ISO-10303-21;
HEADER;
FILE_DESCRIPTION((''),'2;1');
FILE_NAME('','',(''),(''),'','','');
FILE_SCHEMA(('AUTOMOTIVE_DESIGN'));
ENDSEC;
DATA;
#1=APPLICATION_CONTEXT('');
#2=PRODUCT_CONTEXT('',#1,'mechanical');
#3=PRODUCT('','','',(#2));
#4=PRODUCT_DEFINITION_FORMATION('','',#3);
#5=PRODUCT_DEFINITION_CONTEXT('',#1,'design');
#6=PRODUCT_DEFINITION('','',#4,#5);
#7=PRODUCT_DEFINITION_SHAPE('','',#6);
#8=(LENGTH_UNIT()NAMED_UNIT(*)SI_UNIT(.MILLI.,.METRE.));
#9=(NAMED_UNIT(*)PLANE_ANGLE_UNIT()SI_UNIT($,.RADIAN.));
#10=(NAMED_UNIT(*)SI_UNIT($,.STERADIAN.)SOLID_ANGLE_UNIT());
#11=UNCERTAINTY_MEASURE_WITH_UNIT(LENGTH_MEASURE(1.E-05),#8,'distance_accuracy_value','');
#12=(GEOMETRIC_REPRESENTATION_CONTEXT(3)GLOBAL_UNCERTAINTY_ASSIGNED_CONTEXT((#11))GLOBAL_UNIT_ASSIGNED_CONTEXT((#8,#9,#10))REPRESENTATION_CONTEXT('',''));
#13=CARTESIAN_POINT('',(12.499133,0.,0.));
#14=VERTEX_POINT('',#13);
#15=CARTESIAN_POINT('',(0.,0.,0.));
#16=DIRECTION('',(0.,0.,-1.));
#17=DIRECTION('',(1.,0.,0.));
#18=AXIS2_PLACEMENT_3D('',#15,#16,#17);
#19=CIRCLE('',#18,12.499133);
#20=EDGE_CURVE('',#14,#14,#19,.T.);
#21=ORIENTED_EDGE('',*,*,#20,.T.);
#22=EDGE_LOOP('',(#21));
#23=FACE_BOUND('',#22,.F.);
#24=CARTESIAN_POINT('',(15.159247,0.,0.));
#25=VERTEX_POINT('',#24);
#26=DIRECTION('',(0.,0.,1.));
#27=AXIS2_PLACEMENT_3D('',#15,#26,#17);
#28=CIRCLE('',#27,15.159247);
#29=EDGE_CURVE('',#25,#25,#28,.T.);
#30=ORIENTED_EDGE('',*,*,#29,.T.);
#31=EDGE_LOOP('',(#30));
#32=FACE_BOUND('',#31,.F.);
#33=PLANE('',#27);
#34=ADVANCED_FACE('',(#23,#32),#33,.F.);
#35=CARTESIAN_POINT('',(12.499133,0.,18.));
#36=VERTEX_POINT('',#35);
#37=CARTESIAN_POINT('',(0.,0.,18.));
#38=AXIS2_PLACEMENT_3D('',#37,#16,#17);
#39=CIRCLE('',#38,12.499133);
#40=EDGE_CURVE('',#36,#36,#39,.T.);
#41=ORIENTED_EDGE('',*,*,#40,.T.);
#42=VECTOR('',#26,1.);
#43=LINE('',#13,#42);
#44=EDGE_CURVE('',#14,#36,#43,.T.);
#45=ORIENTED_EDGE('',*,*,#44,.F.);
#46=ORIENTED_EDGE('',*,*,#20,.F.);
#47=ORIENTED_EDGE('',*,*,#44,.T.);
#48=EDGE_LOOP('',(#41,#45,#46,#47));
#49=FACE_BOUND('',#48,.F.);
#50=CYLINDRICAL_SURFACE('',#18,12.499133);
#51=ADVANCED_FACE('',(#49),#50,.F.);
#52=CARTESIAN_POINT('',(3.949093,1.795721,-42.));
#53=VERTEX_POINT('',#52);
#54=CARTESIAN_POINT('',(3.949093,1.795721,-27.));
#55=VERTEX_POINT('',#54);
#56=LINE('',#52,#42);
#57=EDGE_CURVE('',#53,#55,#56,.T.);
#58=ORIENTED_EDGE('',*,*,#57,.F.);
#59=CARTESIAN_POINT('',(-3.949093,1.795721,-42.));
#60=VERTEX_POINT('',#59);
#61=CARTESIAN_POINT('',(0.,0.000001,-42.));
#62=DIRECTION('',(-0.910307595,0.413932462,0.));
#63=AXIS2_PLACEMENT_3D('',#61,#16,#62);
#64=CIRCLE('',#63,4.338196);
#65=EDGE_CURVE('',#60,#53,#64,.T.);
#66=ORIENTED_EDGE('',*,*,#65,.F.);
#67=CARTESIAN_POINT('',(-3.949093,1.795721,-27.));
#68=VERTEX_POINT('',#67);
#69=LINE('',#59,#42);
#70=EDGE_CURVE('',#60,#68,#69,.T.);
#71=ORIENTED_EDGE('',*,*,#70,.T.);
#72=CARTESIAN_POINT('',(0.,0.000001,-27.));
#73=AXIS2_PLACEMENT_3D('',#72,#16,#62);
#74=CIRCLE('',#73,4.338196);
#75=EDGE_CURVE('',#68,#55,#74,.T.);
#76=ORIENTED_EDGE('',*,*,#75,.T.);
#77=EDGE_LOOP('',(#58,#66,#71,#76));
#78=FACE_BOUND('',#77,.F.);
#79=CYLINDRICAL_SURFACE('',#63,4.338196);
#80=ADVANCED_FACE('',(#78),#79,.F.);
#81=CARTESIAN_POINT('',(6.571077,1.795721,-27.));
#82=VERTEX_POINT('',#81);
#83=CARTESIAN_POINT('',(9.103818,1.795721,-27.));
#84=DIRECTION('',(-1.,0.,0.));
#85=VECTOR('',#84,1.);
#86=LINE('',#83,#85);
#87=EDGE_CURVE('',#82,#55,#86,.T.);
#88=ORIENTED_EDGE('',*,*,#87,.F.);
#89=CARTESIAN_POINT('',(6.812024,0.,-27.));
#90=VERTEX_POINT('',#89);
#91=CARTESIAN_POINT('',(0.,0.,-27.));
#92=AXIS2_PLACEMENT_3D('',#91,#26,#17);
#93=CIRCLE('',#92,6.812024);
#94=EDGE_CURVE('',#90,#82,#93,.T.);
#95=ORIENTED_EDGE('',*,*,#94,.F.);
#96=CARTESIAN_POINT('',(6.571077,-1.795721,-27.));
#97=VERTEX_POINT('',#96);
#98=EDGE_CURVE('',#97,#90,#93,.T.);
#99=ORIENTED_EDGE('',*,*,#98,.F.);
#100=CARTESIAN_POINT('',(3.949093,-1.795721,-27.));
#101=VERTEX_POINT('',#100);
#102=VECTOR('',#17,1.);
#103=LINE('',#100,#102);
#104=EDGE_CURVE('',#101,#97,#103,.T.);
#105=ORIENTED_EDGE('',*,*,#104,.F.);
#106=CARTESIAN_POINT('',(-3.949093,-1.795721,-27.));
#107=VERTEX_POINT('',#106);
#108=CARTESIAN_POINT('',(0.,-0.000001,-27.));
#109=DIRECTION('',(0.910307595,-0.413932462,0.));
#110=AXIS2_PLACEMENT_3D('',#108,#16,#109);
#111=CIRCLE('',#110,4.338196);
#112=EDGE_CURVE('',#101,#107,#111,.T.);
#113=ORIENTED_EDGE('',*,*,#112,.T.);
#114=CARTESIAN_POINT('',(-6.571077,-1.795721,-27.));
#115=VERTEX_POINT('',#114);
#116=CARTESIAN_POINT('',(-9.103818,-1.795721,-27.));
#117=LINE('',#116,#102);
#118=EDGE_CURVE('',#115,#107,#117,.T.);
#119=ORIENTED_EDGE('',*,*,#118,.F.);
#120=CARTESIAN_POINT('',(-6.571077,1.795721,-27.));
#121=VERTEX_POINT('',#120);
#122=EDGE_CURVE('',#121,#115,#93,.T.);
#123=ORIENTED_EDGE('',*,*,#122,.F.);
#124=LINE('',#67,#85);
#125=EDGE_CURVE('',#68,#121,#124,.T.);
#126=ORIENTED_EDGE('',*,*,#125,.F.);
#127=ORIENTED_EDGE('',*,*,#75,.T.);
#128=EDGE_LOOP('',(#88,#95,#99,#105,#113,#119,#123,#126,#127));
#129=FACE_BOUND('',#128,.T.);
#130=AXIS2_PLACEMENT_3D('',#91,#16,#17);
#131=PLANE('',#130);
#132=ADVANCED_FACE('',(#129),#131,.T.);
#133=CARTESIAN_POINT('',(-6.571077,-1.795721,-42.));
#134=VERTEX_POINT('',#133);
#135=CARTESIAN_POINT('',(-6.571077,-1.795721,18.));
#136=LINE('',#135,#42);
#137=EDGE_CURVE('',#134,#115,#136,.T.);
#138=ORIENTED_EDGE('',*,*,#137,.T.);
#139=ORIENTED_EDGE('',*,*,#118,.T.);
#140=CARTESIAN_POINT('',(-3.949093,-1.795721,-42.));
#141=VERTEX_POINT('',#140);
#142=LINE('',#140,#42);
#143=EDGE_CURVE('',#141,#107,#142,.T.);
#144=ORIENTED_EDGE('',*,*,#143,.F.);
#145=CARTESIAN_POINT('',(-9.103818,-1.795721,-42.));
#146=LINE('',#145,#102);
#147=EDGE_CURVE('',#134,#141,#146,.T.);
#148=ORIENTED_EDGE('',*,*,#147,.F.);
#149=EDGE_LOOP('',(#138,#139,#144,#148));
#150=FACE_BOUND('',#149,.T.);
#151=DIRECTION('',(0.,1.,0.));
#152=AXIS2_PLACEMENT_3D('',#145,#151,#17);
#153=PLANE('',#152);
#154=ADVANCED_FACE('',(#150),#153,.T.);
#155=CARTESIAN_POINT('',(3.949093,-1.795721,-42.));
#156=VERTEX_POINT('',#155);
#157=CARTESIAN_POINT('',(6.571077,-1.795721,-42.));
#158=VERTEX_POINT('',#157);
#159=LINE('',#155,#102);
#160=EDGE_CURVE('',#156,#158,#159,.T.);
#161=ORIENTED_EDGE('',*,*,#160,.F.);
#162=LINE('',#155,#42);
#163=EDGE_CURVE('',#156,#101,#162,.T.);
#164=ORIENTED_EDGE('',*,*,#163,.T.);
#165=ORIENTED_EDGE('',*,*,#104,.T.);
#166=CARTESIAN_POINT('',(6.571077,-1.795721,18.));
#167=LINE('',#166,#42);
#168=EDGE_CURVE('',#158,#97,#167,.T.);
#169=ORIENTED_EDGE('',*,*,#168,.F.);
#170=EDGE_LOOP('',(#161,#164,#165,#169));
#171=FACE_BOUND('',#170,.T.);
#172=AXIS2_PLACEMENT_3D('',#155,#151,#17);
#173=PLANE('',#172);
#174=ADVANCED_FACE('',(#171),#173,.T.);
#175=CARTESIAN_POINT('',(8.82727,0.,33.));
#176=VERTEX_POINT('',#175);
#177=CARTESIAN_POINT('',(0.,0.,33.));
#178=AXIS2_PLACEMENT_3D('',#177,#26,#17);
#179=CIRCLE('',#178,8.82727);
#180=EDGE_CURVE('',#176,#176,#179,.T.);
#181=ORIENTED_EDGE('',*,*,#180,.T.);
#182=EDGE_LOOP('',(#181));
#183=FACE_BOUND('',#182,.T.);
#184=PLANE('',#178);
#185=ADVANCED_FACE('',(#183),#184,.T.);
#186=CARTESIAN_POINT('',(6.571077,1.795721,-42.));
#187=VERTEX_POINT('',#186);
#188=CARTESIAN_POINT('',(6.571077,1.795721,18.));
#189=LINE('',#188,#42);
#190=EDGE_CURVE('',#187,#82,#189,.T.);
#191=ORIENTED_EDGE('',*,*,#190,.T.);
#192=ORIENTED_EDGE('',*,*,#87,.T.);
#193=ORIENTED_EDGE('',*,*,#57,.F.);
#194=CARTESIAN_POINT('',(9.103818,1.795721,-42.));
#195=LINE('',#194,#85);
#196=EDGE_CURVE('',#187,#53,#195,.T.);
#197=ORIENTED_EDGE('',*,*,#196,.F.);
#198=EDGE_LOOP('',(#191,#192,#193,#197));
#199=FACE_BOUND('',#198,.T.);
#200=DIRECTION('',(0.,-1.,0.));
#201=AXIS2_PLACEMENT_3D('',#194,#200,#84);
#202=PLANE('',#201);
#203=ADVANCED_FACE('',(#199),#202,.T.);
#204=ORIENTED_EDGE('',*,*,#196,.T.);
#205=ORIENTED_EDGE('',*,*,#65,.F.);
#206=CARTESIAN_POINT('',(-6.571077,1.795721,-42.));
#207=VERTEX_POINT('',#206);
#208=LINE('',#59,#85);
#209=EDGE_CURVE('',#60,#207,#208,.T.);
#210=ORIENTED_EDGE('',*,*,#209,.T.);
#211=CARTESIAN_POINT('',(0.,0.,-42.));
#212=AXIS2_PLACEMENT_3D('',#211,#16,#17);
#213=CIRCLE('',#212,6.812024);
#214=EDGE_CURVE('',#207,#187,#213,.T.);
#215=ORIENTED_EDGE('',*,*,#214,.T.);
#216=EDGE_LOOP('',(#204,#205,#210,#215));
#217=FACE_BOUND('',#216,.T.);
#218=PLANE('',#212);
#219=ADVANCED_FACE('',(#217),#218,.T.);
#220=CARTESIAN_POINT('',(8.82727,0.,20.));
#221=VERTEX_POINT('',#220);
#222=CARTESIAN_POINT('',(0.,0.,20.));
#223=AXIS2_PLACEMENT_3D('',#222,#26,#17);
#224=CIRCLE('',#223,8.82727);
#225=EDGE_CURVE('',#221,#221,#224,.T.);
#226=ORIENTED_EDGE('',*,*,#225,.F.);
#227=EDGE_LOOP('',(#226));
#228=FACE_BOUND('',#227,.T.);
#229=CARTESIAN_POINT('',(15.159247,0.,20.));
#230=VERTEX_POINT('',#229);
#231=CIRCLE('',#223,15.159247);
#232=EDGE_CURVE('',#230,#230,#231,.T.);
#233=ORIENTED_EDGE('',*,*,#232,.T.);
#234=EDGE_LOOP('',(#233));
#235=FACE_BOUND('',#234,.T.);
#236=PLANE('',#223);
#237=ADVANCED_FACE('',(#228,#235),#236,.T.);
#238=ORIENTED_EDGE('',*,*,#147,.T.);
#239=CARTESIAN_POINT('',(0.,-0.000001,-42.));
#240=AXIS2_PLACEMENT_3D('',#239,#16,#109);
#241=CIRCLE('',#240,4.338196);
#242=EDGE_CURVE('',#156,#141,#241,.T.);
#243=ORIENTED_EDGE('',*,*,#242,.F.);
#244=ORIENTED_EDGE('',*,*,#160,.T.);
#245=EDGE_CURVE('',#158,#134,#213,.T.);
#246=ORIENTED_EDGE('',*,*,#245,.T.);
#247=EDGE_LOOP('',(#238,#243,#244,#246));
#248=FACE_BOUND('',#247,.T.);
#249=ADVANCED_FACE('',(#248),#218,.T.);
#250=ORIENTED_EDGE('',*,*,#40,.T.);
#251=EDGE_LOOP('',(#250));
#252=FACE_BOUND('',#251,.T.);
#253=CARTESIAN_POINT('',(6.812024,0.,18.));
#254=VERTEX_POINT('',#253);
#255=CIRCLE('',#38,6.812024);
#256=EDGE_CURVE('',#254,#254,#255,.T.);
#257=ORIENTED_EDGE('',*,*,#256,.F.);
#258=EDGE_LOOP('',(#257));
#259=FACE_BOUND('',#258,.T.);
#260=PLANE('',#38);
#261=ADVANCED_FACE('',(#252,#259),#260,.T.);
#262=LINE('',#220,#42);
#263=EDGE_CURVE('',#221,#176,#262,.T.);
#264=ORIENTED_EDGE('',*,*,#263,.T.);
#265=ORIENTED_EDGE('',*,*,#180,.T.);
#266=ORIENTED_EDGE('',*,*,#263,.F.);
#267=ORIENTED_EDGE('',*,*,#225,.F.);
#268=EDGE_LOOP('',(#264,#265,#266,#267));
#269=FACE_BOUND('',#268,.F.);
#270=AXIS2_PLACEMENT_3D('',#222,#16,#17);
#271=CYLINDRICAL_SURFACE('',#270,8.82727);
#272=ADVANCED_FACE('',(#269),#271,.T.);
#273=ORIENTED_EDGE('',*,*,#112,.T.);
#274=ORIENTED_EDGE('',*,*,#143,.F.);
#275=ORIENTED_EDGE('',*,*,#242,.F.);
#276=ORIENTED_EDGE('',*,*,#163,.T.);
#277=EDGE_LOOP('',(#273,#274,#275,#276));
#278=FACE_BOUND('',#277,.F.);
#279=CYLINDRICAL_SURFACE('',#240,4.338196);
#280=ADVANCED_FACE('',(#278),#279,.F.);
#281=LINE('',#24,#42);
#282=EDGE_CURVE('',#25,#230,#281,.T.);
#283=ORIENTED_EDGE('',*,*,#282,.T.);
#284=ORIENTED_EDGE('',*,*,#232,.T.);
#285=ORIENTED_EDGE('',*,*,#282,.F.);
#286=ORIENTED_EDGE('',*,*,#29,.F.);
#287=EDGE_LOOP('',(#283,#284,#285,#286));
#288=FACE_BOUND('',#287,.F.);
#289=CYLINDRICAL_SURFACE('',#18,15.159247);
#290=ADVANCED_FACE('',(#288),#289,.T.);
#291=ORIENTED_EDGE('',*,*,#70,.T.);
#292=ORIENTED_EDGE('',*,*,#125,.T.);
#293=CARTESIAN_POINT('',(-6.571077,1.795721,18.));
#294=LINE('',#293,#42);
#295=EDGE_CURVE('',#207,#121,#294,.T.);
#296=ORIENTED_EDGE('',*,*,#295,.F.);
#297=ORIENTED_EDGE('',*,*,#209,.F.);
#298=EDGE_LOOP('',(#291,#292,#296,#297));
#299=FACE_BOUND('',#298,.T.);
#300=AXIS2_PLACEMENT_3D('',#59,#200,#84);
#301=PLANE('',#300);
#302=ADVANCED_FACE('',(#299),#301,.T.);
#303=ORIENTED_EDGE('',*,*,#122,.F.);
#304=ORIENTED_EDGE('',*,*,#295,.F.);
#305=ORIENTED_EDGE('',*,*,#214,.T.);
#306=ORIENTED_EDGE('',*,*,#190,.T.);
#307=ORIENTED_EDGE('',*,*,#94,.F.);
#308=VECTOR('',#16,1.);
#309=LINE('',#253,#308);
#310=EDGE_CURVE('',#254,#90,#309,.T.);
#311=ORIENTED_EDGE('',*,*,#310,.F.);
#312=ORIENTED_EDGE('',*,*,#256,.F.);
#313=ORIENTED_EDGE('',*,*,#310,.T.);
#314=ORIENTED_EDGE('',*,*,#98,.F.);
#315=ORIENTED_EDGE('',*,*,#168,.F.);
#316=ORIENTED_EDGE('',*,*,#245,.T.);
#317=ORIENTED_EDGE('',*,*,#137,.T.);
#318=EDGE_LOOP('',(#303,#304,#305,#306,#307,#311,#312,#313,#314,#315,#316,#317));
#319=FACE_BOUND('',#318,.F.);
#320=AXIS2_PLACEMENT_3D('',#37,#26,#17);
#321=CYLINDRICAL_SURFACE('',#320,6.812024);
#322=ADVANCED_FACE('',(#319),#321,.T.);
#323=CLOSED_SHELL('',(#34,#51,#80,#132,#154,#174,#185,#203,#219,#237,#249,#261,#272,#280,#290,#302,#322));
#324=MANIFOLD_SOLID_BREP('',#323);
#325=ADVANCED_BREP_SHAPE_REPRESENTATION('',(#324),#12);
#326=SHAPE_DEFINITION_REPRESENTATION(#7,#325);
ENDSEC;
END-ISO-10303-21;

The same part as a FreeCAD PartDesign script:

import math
import FreeCAD as App
import Part
import Sketcher

V = App.Vector

doc = App.newDocument("Part")
params = doc.addObject("Spreadsheet::Sheet", "Params")
for row, (alias, value) in enumerate([
    ("pad1_length", "20 mm"),
    ("pad2_length", "13 mm"),
    ("pocket1_length", "18 mm"),
    ("pad3_length", "60 mm"),
    ("pocket2_length", "15 mm"),
], start=1):
    params.set(f"A{row}", alias)
    params.set(f"B{row}", "=" + value)
    params.setAlias(f"B{row}", alias)

body = doc.addObject("PartDesign::Body", "Body")

sketch1 = body.newObject("Sketcher::SketchObject", "Sketch")
sketch1.AttachmentSupport = (doc.getObject("XY_Plane"), [""])
sketch1.MapMode = "FlatFace"
sketch1.addGeometry(Part.Circle(V(0, 0, 0), V(0, 0, 1), 15.159247), False)
sketch1.addConstraint(Sketcher.Constraint("Coincident", 0, 3, -1, 1))
sketch1.addConstraint(Sketcher.Constraint("Diameter", 0, 30.318494))
pad1 = body.newObject("PartDesign::Pad", "Pad")
pad1.Profile = sketch1
pad1.setExpression("Length", "Params.pad1_length")

sketch2 = body.newObject("Sketcher::SketchObject", "Sketch001")
sketch2.AttachmentSupport = (doc.getObject("XY_Plane"), [""])
sketch2.MapMode = "FlatFace"
sketch2.AttachmentOffset = App.Placement(V(0, 0, 20), App.Rotation())
sketch2.addGeometry(Part.Circle(V(0, 0, 0), V(0, 0, 1), 8.82727), False)
sketch2.addConstraint(Sketcher.Constraint("Coincident", 0, 3, -1, 1))
sketch2.addConstraint(Sketcher.Constraint("Diameter", 0, 17.65454))
pad2 = body.newObject("PartDesign::Pad", "Pad001")
pad2.Profile = sketch2
pad2.setExpression("Length", "Params.pad2_length")

sketch3 = body.newObject("Sketcher::SketchObject", "Sketch002")
sketch3.AttachmentSupport = (doc.getObject("XY_Plane"), [""])
sketch3.MapMode = "FlatFace"
sketch3.addGeometry(Part.Circle(V(0, 0, 0), V(0, 0, 1), 12.499133), False)
sketch3.addConstraint(Sketcher.Constraint("Coincident", 0, 3, -1, 1))
sketch3.addConstraint(Sketcher.Constraint("Diameter", 0, 24.998266))
pocket1 = body.newObject("PartDesign::Pocket", "Pocket")
pocket1.Profile = sketch3
pocket1.setExpression("Length", "Params.pocket1_length")
pocket1.Reversed = True

sketch4 = body.newObject("Sketcher::SketchObject", "Sketch003")
sketch4.AttachmentSupport = (doc.getObject("XY_Plane"), [""])
sketch4.MapMode = "FlatFace"
sketch4.AttachmentOffset = App.Placement(V(0, 0, 18), App.Rotation())
sketch4.addGeometry(Part.Circle(V(0, 0, 0), V(0, 0, 1), 6.812024), False)
sketch4.addConstraint(Sketcher.Constraint("Coincident", 0, 3, -1, 1))
sketch4.addConstraint(Sketcher.Constraint("Diameter", 0, 13.624048))
pad3 = body.newObject("PartDesign::Pad", "Pad002")
pad3.Profile = sketch4
pad3.setExpression("Length", "Params.pad3_length")
pad3.Reversed = True

sketch5 = body.newObject("Sketcher::SketchObject", "Sketch004")
sketch5.AttachmentSupport = (doc.getObject("XY_Plane"), [""])
sketch5.MapMode = "FlatFace"
sketch5.AttachmentOffset = App.Placement(V(0, 0, -42), App.Rotation())
sketch5.addGeometry(Part.ArcOfCircle(Part.Circle(V(0, 0.000001, 0), V(0, 0, 1), 4.338196), math.radians(24.452107), math.radians(155.547893)), False)
sketch5.addGeometry(Part.LineSegment(V(3.949093, 1.795721, 0), V(9.103818, 1.795721, 0)), False)
sketch5.addGeometry(Part.LineSegment(V(9.103818, 1.795721, 0), V(9.103818, -1.795721, 0)), False)
sketch5.addGeometry(Part.LineSegment(V(9.103818, -1.795721, 0), V(3.949093, -1.795721, 0)), False)
sketch5.addGeometry(Part.ArcOfCircle(Part.Circle(V(0, -0.000001, 0), V(0, 0, 1), 4.338196), math.radians(-155.547893), math.radians(-24.452107)), False)
sketch5.addGeometry(Part.LineSegment(V(-3.949093, -1.795721, 0), V(-9.103818, -1.795721, 0)), False)
sketch5.addGeometry(Part.LineSegment(V(-9.103818, -1.795721, 0), V(-9.103818, 1.795721, 0)), False)
sketch5.addGeometry(Part.LineSegment(V(-9.103818, 1.795721, 0), V(-3.949093, 1.795721, 0)), False)
sketch5.addConstraint(Sketcher.Constraint("Coincident", 0, 1, 1, 1))
sketch5.addConstraint(Sketcher.Constraint("Coincident", 1, 2, 2, 1))
sketch5.addConstraint(Sketcher.Constraint("Coincident", 2, 2, 3, 1))
sketch5.addConstraint(Sketcher.Constraint("Coincident", 3, 2, 4, 2))
sketch5.addConstraint(Sketcher.Constraint("Coincident", 4, 1, 5, 1))
sketch5.addConstraint(Sketcher.Constraint("Coincident", 5, 2, 6, 1))
sketch5.addConstraint(Sketcher.Constraint("Coincident", 6, 2, 7, 1))
sketch5.addConstraint(Sketcher.Constraint("Coincident", 7, 2, 0, 2))
sketch5.addConstraint(Sketcher.Constraint("Horizontal", 1))
sketch5.addConstraint(Sketcher.Constraint("Vertical", 2))
sketch5.addConstraint(Sketcher.Constraint("Horizontal", 3))
sketch5.addConstraint(Sketcher.Constraint("Horizontal", 5))
sketch5.addConstraint(Sketcher.Constraint("Vertical", 6))
sketch5.addConstraint(Sketcher.Constraint("Horizontal", 7))
sketch5.addConstraint(Sketcher.Constraint("Coincident", 0, 3, -1, 1))
sketch5.addConstraint(Sketcher.Constraint("Coincident", 4, 3, -1, 1))
sketch5.addConstraint(Sketcher.Constraint("Equal", 0, 4))
sketch5.addConstraint(Sketcher.Constraint("Symmetric", 1, 2, 5, 2, -1, 1))
sketch5.addConstraint(Sketcher.Constraint("Horizontal", 3, 2, 4, 1))
sketch5.addConstraint(Sketcher.Constraint("Horizontal", 1, 2, 6, 2))
sketch5.addConstraint(Sketcher.Constraint("Radius", 0, 4.338196))
sketch5.addConstraint(Sketcher.Constraint("DistanceY", 2, 2, 2, 1, 3.591442))
sketch5.addConstraint(Sketcher.Constraint("DistanceX", 1, 1, 1, 2, 5.154725))
pocket2 = body.newObject("PartDesign::Pocket", "Pocket001")
pocket2.Profile = sketch5
pocket2.setExpression("Length", "Params.pocket2_length")
pocket2.Reversed = True

doc.recompute()
